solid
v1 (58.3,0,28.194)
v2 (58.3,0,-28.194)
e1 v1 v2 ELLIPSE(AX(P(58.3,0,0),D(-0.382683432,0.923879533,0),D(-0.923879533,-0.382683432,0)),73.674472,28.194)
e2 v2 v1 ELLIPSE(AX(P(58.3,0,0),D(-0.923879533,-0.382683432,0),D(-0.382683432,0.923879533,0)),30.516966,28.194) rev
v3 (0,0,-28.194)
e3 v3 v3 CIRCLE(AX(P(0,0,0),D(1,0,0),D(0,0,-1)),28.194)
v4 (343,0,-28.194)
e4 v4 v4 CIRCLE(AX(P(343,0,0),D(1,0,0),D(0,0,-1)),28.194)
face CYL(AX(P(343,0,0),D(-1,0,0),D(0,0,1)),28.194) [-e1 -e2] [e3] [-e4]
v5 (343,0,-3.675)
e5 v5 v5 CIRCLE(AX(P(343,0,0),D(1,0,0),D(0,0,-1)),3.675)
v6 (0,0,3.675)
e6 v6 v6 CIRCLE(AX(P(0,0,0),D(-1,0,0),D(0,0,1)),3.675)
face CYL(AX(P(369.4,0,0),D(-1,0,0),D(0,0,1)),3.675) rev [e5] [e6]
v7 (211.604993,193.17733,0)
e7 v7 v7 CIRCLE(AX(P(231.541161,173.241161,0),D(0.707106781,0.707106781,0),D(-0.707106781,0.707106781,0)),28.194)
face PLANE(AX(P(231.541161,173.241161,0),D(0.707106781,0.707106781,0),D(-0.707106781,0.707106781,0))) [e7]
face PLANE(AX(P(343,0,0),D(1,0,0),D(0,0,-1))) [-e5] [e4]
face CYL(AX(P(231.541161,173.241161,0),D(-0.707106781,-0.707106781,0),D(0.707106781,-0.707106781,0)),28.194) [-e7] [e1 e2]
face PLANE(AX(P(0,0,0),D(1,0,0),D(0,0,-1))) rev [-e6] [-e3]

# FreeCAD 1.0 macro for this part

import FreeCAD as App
import Part
import Sketcher

doc = App.newDocument("Part")
body = doc.addObject("PartDesign::Body", "Body")

sketch1 = body.newObject("Sketcher::SketchObject", "Sketch")
sketch1.AttachmentSupport = (doc.getObject("YZ_Plane"), [""])
sketch1.MapMode = "FlatFace"
sketch1.addGeometry(Part.Circle(App.Vector(0, 0, 0), App.Vector(0, 0, 1), 28), False)
sketch1.addConstraint([
    Sketcher.Constraint("Coincident", 0, 3, -1, 1),
    Sketcher.Constraint("Diameter", 0, 56.388),
])
pad1 = body.newObject("PartDesign::Pad", "Pad")
pad1.Profile = sketch1
pad1.Length = 343

sketch2 = body.newObject("Sketcher::SketchObject", "Sketch001")
sketch2.Placement = App.Placement(App.Vector(29.15, 29.15, 0), App.Rotation(App.Vector(0.707106781, -0.707106781, 0), App.Vector(0, 0, -0.999999999), App.Vector(0.707106781, 0.707106781, 0), "ZXY"))
sketch2.addGeometry(Part.Circle(App.Vector(41, 0, 0), App.Vector(0, 0, 1), 28), False)
sketch2.addConstraint([
    Sketcher.Constraint("PointOnObject", 0, 3, -1),
    Sketcher.Constraint("Diameter", 0, 56.388),
    Sketcher.Constraint("DistanceX", -1, 1, 0, 3, 41.224325),
])
pad2 = body.newObject("PartDesign::Pad", "Pad001")
pad2.Profile = sketch2
pad2.Length = 245

sketch3 = body.newObject("Sketcher::SketchObject", "Sketch002")
sketch3.AttachmentSupport = (doc.getObject("YZ_Plane"), [""])
sketch3.MapMode = "FlatFace"
sketch3.addGeometry(Part.Circle(App.Vector(0, 0, 0), App.Vector(0, 0, 1), 3.7), False)
sketch3.addConstraint([
    Sketcher.Constraint("Coincident", 0, 3, -1, 1),
    Sketcher.Constraint("Diameter", 0, 7.35),
])
pocket1 = body.newObject("PartDesign::Pocket", "Pocket")
pocket1.Profile = sketch3
pocket1.Length = 369.4
pocket1.Reversed = True

doc.recompute()
